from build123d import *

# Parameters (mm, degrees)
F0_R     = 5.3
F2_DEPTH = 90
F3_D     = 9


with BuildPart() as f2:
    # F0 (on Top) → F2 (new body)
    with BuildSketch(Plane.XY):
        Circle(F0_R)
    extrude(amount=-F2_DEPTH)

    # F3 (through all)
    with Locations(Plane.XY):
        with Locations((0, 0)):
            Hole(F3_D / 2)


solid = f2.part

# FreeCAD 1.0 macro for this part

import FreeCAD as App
import Part
import Sketcher
from FreeCAD import Vector

doc = App.newDocument("Part")
params = doc.addObject("Spreadsheet::Sheet", "Params")
for row, (alias, value) in enumerate([
    ("sketch1_diameter", "10.6 mm"),
    ("pad1_length", "90 mm"),
    ("sketch2_diameter", "9 mm"),
    ("hole_diameter", "9 mm"),
], start=1):
    params.set(f"A{row}", alias)
    params.set(f"B{row}", "=" + value)
    params.setAlias(f"B{row}", alias)

body = doc.addObject("PartDesign::Body", "Body")

# Sketch on XY plane
sketch1 = body.newObject("Sketcher::SketchObject", "Sketch")
sketch1.AttachmentSupport = (doc.getObject("XY_Plane"), [""])
sketch1.MapMode = "FlatFace"
sketch1.addGeometry(Part.Circle(Vector(0, 0, 0), Vector(0, 0, 1), 5), False)
sketch1.addConstraint([
    Sketcher.Constraint("Coincident", 0, 3, -1, 1),
    Sketcher.Constraint("Diameter", 0, 10.6),
])
sketch1.setExpression("Constraints[1]", "Params.sketch1_diameter")
pad1 = body.newObject("PartDesign::Pad", "Pad")
pad1.Profile = sketch1
pad1.setExpression("Length", "Params.pad1_length")
pad1.Reversed = True

# Sketch on XY plane
sketch2 = body.newObject("Sketcher::SketchObject", "Sketch001")
sketch2.AttachmentSupport = (doc.getObject("XY_Plane"), [""])
sketch2.MapMode = "FlatFace"
sketch2.addGeometry(Part.Circle(Vector(0, 0, 0), Vector(0, 0, 1), 4.5), False)
sketch2.addConstraint([
    Sketcher.Constraint("Coincident", 0, 3, -1, 1),
    Sketcher.Constraint("Diameter", 0, 9.0),
])
sketch2.setExpression("Constraints[1]", "Params.sketch2_diameter")
doc.recompute()
hole = body.newObject("PartDesign::Hole", "Hole")
hole.Profile = sketch2
hole.ThreadType = "None"
hole.setExpression("Diameter", "Params.hole_diameter")
hole.DepthType = "ThroughAll"

doc.recompute()
